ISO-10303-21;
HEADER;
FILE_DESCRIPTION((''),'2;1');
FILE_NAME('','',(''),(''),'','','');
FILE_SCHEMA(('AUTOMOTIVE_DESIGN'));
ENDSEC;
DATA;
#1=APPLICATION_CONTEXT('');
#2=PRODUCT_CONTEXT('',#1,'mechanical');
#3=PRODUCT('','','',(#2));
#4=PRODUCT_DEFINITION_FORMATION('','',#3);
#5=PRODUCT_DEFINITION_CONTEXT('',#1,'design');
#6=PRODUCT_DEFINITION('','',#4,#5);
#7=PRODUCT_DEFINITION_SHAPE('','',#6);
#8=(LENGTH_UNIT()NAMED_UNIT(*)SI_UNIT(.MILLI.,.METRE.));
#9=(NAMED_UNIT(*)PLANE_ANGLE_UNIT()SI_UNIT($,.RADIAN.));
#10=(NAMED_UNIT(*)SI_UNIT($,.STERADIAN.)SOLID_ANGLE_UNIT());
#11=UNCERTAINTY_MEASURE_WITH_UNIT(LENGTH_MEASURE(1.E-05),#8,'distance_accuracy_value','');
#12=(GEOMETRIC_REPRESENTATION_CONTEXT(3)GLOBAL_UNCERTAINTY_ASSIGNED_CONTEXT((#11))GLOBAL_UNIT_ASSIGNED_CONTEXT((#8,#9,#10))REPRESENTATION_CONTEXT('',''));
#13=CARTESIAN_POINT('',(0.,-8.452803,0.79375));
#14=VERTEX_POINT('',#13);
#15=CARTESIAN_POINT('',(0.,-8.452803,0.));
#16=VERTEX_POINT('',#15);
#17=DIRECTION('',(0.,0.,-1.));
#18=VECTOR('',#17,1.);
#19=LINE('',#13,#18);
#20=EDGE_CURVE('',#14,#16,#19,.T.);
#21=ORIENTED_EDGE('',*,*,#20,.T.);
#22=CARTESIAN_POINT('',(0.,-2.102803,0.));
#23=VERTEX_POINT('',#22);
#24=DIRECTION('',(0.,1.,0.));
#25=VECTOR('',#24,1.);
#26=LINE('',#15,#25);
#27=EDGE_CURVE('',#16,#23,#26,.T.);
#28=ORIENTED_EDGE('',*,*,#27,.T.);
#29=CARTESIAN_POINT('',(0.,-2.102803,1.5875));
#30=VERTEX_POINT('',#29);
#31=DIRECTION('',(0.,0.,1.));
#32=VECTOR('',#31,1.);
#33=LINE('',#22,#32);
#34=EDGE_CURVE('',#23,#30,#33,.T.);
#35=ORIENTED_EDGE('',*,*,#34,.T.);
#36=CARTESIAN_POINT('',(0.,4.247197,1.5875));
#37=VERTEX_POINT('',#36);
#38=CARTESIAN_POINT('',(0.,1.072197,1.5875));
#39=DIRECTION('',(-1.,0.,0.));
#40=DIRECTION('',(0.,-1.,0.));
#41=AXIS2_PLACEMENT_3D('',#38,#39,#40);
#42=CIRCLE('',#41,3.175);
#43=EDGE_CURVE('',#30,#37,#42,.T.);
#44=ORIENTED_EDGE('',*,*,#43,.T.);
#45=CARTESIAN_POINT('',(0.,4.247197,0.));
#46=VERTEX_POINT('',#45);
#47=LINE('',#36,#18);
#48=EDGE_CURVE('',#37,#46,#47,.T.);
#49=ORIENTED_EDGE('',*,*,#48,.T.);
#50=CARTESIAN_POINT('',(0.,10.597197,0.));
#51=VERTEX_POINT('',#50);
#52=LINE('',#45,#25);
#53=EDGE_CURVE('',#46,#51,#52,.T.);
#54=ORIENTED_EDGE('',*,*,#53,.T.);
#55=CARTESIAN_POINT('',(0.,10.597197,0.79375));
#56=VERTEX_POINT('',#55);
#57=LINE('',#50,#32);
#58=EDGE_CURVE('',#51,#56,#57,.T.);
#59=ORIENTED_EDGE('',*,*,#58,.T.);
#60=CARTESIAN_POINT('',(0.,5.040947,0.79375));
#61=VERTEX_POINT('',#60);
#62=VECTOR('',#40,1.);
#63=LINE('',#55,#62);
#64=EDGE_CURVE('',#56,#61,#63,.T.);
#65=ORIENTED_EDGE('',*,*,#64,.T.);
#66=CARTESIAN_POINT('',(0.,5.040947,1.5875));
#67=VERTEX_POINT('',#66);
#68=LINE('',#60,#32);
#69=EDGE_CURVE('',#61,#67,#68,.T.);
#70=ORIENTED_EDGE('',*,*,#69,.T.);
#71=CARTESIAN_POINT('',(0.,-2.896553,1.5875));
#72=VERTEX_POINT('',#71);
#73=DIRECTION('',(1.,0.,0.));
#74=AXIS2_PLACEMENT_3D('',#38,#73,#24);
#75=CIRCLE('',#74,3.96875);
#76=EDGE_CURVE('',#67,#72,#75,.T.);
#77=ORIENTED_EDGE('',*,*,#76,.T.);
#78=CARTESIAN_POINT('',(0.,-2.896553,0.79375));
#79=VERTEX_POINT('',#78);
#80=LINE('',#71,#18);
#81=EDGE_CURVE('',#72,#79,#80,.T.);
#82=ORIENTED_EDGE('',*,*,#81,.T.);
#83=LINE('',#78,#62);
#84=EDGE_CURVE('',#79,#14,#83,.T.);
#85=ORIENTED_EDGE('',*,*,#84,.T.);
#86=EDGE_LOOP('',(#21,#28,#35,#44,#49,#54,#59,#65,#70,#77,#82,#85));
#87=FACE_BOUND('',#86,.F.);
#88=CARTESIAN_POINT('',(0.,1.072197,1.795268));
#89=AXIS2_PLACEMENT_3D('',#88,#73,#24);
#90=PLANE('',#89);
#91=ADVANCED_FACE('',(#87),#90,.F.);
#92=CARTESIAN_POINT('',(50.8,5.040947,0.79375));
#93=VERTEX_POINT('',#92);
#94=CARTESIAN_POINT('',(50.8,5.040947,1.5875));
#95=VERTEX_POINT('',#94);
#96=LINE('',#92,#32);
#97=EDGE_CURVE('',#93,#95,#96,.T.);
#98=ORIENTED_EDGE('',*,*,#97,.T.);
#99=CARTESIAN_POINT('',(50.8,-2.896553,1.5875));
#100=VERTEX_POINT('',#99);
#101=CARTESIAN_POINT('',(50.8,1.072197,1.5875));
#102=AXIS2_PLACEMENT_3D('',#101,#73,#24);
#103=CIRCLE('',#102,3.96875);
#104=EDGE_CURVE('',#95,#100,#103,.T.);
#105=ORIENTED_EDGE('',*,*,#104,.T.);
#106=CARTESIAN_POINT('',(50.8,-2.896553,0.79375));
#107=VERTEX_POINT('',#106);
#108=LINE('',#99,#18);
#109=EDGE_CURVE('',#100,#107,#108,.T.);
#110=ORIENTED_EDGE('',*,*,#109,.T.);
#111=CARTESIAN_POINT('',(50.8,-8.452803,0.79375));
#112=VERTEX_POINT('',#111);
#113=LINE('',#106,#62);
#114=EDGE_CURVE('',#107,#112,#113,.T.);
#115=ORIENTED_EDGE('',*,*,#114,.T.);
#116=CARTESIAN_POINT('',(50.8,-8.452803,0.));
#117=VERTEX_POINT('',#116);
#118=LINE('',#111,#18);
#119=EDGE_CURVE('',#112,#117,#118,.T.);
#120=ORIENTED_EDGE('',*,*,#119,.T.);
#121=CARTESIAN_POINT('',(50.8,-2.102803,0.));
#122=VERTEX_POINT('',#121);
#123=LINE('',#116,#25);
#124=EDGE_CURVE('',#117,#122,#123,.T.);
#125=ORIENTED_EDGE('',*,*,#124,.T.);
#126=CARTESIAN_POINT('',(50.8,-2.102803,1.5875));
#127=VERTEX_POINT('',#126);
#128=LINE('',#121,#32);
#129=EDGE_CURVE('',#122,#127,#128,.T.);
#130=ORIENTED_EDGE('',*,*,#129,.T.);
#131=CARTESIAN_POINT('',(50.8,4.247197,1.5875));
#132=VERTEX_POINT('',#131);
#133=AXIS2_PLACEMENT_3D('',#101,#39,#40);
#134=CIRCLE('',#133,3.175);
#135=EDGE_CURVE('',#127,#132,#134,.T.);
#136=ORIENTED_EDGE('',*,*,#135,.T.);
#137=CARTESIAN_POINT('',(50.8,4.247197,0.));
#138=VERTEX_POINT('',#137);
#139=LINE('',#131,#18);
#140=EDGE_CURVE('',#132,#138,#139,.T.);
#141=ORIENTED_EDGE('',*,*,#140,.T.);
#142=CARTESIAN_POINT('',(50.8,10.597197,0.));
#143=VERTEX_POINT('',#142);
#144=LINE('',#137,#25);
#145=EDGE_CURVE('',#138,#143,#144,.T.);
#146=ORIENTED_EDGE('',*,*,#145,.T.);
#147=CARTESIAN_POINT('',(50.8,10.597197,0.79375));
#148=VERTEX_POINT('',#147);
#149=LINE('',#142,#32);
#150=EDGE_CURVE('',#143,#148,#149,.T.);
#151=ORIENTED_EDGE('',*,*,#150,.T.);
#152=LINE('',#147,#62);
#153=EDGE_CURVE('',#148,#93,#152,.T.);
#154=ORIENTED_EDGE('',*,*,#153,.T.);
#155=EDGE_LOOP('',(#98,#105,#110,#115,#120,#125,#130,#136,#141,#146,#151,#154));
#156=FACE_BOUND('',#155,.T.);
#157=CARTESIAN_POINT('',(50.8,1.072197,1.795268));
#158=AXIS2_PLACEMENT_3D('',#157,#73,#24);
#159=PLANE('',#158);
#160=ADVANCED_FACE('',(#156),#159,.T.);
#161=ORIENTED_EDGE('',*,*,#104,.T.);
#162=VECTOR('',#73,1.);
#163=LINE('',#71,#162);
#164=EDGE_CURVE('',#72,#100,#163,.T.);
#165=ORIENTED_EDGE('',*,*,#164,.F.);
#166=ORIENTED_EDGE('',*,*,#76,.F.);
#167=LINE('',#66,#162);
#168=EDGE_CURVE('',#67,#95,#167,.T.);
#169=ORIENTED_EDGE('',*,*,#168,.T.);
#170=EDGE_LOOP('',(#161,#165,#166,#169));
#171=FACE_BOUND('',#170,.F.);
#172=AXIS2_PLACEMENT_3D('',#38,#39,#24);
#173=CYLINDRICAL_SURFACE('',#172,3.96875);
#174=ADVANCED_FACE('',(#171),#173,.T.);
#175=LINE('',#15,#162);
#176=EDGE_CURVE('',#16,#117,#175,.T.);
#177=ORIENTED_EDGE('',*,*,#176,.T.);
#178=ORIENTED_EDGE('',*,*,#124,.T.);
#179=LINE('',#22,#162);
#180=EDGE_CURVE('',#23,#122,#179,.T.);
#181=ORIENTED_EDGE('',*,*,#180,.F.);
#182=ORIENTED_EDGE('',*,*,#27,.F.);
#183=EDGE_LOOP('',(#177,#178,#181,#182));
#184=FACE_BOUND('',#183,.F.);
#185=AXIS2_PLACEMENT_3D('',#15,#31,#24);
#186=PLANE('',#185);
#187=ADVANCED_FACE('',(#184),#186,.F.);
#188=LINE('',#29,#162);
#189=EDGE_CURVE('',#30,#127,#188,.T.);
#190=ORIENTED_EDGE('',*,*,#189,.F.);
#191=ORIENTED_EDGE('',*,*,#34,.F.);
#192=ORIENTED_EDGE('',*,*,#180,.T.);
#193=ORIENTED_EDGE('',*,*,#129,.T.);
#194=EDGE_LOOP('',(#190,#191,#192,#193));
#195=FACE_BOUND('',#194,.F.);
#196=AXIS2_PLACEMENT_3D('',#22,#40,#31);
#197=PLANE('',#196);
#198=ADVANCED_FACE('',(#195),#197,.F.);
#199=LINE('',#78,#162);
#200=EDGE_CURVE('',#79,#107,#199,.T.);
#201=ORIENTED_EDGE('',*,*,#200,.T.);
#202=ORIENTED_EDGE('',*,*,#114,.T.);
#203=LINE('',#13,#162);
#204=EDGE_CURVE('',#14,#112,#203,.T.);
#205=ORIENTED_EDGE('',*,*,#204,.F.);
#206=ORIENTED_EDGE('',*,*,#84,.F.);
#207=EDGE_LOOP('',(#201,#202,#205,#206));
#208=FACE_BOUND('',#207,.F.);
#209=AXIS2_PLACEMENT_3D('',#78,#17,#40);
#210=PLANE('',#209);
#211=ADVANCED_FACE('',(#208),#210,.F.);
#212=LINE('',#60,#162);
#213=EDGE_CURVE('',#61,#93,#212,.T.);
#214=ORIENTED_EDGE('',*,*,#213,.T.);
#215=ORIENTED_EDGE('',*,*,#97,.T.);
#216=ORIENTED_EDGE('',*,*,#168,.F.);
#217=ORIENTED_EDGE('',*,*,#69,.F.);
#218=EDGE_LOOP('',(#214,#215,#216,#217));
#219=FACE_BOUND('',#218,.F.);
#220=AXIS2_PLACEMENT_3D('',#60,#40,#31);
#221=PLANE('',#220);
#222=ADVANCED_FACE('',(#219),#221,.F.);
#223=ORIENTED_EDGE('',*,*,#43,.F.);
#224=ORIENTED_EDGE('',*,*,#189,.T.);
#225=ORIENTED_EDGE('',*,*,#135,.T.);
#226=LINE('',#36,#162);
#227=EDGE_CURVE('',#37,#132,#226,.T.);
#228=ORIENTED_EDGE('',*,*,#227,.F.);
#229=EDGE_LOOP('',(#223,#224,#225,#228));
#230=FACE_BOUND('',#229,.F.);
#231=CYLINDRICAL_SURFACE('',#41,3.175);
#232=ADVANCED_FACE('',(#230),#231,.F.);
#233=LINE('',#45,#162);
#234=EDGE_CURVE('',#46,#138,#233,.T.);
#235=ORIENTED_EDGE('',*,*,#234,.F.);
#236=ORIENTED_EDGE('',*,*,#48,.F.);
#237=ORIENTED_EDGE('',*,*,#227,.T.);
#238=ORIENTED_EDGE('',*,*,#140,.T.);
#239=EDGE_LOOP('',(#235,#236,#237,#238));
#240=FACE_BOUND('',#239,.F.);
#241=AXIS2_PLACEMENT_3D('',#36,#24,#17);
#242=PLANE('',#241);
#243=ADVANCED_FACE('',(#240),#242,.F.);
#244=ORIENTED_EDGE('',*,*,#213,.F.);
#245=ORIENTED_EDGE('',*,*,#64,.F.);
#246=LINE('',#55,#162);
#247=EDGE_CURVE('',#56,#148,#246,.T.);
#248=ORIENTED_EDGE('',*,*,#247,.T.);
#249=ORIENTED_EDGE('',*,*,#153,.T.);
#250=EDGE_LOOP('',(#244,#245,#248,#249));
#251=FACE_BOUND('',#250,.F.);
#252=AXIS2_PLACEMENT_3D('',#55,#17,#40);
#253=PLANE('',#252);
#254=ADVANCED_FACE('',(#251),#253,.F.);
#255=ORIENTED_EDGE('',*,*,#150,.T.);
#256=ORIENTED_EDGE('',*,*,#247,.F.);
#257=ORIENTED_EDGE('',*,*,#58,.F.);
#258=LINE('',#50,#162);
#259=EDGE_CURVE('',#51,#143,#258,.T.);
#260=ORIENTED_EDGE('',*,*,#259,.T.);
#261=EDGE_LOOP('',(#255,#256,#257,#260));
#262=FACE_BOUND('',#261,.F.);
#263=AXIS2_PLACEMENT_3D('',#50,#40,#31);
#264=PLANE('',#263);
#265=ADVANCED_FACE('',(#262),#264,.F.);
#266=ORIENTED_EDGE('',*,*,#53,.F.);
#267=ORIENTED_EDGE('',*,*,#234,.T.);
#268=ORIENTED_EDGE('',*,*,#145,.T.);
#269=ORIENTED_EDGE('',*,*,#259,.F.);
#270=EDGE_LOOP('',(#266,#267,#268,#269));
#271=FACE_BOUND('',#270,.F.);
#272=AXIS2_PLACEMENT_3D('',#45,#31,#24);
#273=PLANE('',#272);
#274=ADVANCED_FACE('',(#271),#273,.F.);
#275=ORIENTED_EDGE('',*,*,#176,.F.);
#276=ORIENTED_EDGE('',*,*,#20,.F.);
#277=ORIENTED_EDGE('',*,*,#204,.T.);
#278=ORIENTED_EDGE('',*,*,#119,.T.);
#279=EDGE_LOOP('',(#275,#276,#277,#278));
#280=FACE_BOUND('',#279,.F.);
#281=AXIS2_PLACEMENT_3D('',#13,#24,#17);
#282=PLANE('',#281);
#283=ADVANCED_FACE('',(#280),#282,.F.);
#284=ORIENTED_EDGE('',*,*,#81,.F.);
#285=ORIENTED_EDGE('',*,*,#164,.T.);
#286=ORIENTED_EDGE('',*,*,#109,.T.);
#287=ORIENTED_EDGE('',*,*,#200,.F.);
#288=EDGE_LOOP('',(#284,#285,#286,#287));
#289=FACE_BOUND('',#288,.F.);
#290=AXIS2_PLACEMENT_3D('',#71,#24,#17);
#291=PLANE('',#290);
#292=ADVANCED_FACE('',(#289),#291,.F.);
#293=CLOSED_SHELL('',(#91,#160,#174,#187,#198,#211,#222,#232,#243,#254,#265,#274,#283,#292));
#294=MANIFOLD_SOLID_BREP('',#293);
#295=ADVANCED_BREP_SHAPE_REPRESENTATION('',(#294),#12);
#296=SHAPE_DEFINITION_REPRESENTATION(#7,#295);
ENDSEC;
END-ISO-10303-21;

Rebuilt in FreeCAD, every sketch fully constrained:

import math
import FreeCAD as App
import Part
import Sketcher
from FreeCAD import Vector
Q = App.Units.Quantity

doc = App.newDocument("Part")
body = doc.addObject("PartDesign::Body", "Body")

# Sketch on YZ plane
sketch1 = doc.addObject("Sketcher::SketchObject", "Sketch")
body.addObject(sketch1)
sketch1.AttachmentSupport = (doc.YZ_Plane, [""])
sketch1.MapMode = "FlatFace"
sketch1.addGeometry([
    Part.LineSegment(Vector(-8.5, 0, 0), Vector(-2.1, 0, 0)),  # 0
    Part.LineSegment(Vector(-2.1, 0, 0), Vector(-2.1, 1.6, 0)),  # 1
    Part.ArcOfCircle(Part.Circle(Vector(1.1, 1.6, 0), Vector(0, 0, 1), 3.2), math.radians(0), math.radians(180)),  # 2
    Part.LineSegment(Vector(4.2, 1.6, 0), Vector(4.2, 0, 0)),  # 3
    Part.LineSegment(Vector(4.2, 0, 0), Vector(10.6, 0, 0)),  # 4
    Part.LineSegment(Vector(10.6, 0, 0), Vector(10.6, 0.8, 0)),  # 5
    Part.LineSegment(Vector(10.6, 0.8, 0), Vector(5, 0.8, 0)),  # 6
    Part.LineSegment(Vector(5, 0.8, 0), Vector(5, 1.6, 0)),  # 7
    Part.ArcOfCircle(Part.Circle(Vector(1.1, 1.6, 0), Vector(0, 0, 1), 4), math.radians(0), math.radians(180)),  # 8
    Part.LineSegment(Vector(-2.9, 1.6, 0), Vector(-2.9, 0.8, 0)),  # 9
    Part.LineSegment(Vector(-2.9, 0.8, 0), Vector(-8.5, 0.8, 0)),  # 10
    Part.LineSegment(Vector(-8.5, 0.8, 0), Vector(-8.5, 0, 0)),  # 11
], False)
sketch1.addConstraint([
    Sketcher.Constraint("Coincident", 0, 2, 1, 1),
    Sketcher.Constraint("Tangent", 1, 2, 2, 2),
    Sketcher.Constraint("Tangent", 2, 1, 3, 1),
    Sketcher.Constraint("Coincident", 3, 2, 4, 1),
    Sketcher.Constraint("Coincident", 4, 2, 5, 1),
    Sketcher.Constraint("Coincident", 5, 2, 6, 1),
    Sketcher.Constraint("Coincident", 6, 2, 7, 1),
    Sketcher.Constraint("Tangent", 7, 2, 8, 1),
    Sketcher.Constraint("Tangent", 8, 2, 9, 1),
    Sketcher.Constraint("Coincident", 9, 2, 10, 1),
    Sketcher.Constraint("Coincident", 10, 2, 11, 1),
    Sketcher.Constraint("Coincident", 11, 2, 0, 1),
    Sketcher.Constraint("Horizontal", 0),
    Sketcher.Constraint("Vertical", 1),
    Sketcher.Constraint("Vertical", 3),
    Sketcher.Constraint("Horizontal", 4),
    Sketcher.Constraint("Vertical", 5),
    Sketcher.Constraint("Horizontal", 6),
    Sketcher.Constraint("Vertical", 7),
    Sketcher.Constraint("Vertical", 9),
    Sketcher.Constraint("Horizontal", 10),
    Sketcher.Constraint("Vertical", 11),
    Sketcher.Constraint("Coincident", 8, 3, 2, 3),
    Sketcher.Constraint("PointOnObject", 0, 2, -1),
    Sketcher.Constraint("PointOnObject", 3, 2, -1),
    Sketcher.Constraint("Horizontal", 6, 2, 9, 2),
    Sketcher.Constraint("Equal", 0, 4),
    Sketcher.Constraint("Equal", 5, 7),
    Sketcher.Constraint("Radius", 2, Q("0.125 in")),
    Sketcher.Constraint("Radius", 8, Q("0.15625 in")),
    Sketcher.Constraint("DistanceX", 0, 1, 0, 2, Q("0.25 in")),
    Sketcher.Constraint("DistanceY", 1, 1, 1, 2, Q("0.0625 in")),
    Sketcher.Constraint("DistanceX", -1, 1, 2, 3, 1.072197),
])
pad1 = doc.addObject("PartDesign::Pad", "Pad")
body.addObject(pad1)
pad1.Profile = sketch1
pad1.Length = Q("2 in")

doc.recompute()
